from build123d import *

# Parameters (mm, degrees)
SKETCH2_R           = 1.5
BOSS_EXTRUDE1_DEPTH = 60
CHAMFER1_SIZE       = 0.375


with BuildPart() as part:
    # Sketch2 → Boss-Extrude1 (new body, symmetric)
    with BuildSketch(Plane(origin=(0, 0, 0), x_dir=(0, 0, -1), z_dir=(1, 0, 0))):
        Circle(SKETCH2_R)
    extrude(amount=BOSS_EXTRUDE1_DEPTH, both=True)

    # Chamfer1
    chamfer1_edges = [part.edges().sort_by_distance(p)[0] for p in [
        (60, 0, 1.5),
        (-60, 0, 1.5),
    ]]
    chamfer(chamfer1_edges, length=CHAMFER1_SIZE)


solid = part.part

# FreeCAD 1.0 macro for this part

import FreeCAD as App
import Part
import Sketcher
from FreeCAD import Vector
Q = App.Units.Quantity


def edges_at(feature, points):
    """Names of the edges that pass closest to the given points."""
    edges = feature.Shape.Edges
    near = lambda p: min(range(len(edges)), key=lambda i: edges[i].distToShape(Part.Vertex(*p))[0])
    return sorted({f"Edge{near(p) + 1}" for p in points})

doc = App.newDocument("Part")
body = doc.addObject("PartDesign::Body", "Body")

# Sketch on YZ plane
sketch1 = doc.addObject("Sketcher::SketchObject", "Sketch")
body.addObject(sketch1)
sketch1.AttachmentSupport = (doc.YZ_Plane, [""])
sketch1.MapMode = "FlatFace"
sketch1.addGeometry(Part.Circle(Vector(0, 0, 0), Vector(0, 0, 1), 1.5), False)
sketch1.addConstraint([
    Sketcher.Constraint("Coincident", 0, 3, -1, 1),
    Sketcher.Constraint("Diameter", 0, Q("3 mm")),
])
pad1 = doc.addObject("PartDesign::Pad", "Pad")
body.addObject(pad1)
pad1.Profile = sketch1
pad1.Length = 120
pad1.Midplane = True
doc.recompute()

chamfer = doc.addObject("PartDesign::Chamfer", "Chamfer")
body.addObject(chamfer)
chamfer.Base = (pad1, edges_at(pad1, [(60, 0, 1.5), (-60, 0, 1.5)]))
chamfer.Size = 0.375

doc.recompute()
